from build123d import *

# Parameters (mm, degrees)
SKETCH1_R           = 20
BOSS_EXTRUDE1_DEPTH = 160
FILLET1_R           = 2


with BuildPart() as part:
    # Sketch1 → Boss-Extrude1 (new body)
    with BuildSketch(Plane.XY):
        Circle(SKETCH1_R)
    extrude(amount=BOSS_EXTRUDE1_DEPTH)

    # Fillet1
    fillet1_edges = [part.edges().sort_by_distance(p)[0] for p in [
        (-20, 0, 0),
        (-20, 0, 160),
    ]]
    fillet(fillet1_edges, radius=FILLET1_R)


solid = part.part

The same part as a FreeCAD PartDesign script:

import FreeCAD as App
import Part
import Sketcher
Q = App.Units.Quantity


def edges_at(feature, points):
    """Names of the edges that pass closest to the given points."""
    edges = feature.Shape.Edges
    near = lambda p: min(range(len(edges)), key=lambda i: edges[i].distToShape(Part.Vertex(*p))[0])
    return sorted({f"Edge{near(p) + 1}" for p in points})

doc = App.newDocument("Part")
body = doc.addObject("PartDesign::Body", "Body")

sketch1 = body.newObject("Sketcher::SketchObject", "Sketch")
sketch1.AttachmentSupport = (doc.getObject("XY_Plane"), [""])
sketch1.MapMode = "FlatFace"
sketch1.addGeometry(Part.Circle(App.Vector(0, 0, 0), App.Vector(0, 0, 1), 20), False)
sketch1.addConstraint([
    Sketcher.Constraint("Coincident", 0, 3, -1, 1),
    Sketcher.Constraint("Diameter", 0, Q("40 mm")),
])
pad1 = body.newObject("PartDesign::Pad", "Pad")
pad1.Profile = sketch1
pad1.Length = 160
doc.recompute()

fillet = body.newObject("PartDesign::Fillet", "Fillet")
fillet.Base = (pad1, edges_at(pad1, [(-20, 0, 0), (-20, 0, 160)]))
fillet.Radius = 2

doc.recompute()
